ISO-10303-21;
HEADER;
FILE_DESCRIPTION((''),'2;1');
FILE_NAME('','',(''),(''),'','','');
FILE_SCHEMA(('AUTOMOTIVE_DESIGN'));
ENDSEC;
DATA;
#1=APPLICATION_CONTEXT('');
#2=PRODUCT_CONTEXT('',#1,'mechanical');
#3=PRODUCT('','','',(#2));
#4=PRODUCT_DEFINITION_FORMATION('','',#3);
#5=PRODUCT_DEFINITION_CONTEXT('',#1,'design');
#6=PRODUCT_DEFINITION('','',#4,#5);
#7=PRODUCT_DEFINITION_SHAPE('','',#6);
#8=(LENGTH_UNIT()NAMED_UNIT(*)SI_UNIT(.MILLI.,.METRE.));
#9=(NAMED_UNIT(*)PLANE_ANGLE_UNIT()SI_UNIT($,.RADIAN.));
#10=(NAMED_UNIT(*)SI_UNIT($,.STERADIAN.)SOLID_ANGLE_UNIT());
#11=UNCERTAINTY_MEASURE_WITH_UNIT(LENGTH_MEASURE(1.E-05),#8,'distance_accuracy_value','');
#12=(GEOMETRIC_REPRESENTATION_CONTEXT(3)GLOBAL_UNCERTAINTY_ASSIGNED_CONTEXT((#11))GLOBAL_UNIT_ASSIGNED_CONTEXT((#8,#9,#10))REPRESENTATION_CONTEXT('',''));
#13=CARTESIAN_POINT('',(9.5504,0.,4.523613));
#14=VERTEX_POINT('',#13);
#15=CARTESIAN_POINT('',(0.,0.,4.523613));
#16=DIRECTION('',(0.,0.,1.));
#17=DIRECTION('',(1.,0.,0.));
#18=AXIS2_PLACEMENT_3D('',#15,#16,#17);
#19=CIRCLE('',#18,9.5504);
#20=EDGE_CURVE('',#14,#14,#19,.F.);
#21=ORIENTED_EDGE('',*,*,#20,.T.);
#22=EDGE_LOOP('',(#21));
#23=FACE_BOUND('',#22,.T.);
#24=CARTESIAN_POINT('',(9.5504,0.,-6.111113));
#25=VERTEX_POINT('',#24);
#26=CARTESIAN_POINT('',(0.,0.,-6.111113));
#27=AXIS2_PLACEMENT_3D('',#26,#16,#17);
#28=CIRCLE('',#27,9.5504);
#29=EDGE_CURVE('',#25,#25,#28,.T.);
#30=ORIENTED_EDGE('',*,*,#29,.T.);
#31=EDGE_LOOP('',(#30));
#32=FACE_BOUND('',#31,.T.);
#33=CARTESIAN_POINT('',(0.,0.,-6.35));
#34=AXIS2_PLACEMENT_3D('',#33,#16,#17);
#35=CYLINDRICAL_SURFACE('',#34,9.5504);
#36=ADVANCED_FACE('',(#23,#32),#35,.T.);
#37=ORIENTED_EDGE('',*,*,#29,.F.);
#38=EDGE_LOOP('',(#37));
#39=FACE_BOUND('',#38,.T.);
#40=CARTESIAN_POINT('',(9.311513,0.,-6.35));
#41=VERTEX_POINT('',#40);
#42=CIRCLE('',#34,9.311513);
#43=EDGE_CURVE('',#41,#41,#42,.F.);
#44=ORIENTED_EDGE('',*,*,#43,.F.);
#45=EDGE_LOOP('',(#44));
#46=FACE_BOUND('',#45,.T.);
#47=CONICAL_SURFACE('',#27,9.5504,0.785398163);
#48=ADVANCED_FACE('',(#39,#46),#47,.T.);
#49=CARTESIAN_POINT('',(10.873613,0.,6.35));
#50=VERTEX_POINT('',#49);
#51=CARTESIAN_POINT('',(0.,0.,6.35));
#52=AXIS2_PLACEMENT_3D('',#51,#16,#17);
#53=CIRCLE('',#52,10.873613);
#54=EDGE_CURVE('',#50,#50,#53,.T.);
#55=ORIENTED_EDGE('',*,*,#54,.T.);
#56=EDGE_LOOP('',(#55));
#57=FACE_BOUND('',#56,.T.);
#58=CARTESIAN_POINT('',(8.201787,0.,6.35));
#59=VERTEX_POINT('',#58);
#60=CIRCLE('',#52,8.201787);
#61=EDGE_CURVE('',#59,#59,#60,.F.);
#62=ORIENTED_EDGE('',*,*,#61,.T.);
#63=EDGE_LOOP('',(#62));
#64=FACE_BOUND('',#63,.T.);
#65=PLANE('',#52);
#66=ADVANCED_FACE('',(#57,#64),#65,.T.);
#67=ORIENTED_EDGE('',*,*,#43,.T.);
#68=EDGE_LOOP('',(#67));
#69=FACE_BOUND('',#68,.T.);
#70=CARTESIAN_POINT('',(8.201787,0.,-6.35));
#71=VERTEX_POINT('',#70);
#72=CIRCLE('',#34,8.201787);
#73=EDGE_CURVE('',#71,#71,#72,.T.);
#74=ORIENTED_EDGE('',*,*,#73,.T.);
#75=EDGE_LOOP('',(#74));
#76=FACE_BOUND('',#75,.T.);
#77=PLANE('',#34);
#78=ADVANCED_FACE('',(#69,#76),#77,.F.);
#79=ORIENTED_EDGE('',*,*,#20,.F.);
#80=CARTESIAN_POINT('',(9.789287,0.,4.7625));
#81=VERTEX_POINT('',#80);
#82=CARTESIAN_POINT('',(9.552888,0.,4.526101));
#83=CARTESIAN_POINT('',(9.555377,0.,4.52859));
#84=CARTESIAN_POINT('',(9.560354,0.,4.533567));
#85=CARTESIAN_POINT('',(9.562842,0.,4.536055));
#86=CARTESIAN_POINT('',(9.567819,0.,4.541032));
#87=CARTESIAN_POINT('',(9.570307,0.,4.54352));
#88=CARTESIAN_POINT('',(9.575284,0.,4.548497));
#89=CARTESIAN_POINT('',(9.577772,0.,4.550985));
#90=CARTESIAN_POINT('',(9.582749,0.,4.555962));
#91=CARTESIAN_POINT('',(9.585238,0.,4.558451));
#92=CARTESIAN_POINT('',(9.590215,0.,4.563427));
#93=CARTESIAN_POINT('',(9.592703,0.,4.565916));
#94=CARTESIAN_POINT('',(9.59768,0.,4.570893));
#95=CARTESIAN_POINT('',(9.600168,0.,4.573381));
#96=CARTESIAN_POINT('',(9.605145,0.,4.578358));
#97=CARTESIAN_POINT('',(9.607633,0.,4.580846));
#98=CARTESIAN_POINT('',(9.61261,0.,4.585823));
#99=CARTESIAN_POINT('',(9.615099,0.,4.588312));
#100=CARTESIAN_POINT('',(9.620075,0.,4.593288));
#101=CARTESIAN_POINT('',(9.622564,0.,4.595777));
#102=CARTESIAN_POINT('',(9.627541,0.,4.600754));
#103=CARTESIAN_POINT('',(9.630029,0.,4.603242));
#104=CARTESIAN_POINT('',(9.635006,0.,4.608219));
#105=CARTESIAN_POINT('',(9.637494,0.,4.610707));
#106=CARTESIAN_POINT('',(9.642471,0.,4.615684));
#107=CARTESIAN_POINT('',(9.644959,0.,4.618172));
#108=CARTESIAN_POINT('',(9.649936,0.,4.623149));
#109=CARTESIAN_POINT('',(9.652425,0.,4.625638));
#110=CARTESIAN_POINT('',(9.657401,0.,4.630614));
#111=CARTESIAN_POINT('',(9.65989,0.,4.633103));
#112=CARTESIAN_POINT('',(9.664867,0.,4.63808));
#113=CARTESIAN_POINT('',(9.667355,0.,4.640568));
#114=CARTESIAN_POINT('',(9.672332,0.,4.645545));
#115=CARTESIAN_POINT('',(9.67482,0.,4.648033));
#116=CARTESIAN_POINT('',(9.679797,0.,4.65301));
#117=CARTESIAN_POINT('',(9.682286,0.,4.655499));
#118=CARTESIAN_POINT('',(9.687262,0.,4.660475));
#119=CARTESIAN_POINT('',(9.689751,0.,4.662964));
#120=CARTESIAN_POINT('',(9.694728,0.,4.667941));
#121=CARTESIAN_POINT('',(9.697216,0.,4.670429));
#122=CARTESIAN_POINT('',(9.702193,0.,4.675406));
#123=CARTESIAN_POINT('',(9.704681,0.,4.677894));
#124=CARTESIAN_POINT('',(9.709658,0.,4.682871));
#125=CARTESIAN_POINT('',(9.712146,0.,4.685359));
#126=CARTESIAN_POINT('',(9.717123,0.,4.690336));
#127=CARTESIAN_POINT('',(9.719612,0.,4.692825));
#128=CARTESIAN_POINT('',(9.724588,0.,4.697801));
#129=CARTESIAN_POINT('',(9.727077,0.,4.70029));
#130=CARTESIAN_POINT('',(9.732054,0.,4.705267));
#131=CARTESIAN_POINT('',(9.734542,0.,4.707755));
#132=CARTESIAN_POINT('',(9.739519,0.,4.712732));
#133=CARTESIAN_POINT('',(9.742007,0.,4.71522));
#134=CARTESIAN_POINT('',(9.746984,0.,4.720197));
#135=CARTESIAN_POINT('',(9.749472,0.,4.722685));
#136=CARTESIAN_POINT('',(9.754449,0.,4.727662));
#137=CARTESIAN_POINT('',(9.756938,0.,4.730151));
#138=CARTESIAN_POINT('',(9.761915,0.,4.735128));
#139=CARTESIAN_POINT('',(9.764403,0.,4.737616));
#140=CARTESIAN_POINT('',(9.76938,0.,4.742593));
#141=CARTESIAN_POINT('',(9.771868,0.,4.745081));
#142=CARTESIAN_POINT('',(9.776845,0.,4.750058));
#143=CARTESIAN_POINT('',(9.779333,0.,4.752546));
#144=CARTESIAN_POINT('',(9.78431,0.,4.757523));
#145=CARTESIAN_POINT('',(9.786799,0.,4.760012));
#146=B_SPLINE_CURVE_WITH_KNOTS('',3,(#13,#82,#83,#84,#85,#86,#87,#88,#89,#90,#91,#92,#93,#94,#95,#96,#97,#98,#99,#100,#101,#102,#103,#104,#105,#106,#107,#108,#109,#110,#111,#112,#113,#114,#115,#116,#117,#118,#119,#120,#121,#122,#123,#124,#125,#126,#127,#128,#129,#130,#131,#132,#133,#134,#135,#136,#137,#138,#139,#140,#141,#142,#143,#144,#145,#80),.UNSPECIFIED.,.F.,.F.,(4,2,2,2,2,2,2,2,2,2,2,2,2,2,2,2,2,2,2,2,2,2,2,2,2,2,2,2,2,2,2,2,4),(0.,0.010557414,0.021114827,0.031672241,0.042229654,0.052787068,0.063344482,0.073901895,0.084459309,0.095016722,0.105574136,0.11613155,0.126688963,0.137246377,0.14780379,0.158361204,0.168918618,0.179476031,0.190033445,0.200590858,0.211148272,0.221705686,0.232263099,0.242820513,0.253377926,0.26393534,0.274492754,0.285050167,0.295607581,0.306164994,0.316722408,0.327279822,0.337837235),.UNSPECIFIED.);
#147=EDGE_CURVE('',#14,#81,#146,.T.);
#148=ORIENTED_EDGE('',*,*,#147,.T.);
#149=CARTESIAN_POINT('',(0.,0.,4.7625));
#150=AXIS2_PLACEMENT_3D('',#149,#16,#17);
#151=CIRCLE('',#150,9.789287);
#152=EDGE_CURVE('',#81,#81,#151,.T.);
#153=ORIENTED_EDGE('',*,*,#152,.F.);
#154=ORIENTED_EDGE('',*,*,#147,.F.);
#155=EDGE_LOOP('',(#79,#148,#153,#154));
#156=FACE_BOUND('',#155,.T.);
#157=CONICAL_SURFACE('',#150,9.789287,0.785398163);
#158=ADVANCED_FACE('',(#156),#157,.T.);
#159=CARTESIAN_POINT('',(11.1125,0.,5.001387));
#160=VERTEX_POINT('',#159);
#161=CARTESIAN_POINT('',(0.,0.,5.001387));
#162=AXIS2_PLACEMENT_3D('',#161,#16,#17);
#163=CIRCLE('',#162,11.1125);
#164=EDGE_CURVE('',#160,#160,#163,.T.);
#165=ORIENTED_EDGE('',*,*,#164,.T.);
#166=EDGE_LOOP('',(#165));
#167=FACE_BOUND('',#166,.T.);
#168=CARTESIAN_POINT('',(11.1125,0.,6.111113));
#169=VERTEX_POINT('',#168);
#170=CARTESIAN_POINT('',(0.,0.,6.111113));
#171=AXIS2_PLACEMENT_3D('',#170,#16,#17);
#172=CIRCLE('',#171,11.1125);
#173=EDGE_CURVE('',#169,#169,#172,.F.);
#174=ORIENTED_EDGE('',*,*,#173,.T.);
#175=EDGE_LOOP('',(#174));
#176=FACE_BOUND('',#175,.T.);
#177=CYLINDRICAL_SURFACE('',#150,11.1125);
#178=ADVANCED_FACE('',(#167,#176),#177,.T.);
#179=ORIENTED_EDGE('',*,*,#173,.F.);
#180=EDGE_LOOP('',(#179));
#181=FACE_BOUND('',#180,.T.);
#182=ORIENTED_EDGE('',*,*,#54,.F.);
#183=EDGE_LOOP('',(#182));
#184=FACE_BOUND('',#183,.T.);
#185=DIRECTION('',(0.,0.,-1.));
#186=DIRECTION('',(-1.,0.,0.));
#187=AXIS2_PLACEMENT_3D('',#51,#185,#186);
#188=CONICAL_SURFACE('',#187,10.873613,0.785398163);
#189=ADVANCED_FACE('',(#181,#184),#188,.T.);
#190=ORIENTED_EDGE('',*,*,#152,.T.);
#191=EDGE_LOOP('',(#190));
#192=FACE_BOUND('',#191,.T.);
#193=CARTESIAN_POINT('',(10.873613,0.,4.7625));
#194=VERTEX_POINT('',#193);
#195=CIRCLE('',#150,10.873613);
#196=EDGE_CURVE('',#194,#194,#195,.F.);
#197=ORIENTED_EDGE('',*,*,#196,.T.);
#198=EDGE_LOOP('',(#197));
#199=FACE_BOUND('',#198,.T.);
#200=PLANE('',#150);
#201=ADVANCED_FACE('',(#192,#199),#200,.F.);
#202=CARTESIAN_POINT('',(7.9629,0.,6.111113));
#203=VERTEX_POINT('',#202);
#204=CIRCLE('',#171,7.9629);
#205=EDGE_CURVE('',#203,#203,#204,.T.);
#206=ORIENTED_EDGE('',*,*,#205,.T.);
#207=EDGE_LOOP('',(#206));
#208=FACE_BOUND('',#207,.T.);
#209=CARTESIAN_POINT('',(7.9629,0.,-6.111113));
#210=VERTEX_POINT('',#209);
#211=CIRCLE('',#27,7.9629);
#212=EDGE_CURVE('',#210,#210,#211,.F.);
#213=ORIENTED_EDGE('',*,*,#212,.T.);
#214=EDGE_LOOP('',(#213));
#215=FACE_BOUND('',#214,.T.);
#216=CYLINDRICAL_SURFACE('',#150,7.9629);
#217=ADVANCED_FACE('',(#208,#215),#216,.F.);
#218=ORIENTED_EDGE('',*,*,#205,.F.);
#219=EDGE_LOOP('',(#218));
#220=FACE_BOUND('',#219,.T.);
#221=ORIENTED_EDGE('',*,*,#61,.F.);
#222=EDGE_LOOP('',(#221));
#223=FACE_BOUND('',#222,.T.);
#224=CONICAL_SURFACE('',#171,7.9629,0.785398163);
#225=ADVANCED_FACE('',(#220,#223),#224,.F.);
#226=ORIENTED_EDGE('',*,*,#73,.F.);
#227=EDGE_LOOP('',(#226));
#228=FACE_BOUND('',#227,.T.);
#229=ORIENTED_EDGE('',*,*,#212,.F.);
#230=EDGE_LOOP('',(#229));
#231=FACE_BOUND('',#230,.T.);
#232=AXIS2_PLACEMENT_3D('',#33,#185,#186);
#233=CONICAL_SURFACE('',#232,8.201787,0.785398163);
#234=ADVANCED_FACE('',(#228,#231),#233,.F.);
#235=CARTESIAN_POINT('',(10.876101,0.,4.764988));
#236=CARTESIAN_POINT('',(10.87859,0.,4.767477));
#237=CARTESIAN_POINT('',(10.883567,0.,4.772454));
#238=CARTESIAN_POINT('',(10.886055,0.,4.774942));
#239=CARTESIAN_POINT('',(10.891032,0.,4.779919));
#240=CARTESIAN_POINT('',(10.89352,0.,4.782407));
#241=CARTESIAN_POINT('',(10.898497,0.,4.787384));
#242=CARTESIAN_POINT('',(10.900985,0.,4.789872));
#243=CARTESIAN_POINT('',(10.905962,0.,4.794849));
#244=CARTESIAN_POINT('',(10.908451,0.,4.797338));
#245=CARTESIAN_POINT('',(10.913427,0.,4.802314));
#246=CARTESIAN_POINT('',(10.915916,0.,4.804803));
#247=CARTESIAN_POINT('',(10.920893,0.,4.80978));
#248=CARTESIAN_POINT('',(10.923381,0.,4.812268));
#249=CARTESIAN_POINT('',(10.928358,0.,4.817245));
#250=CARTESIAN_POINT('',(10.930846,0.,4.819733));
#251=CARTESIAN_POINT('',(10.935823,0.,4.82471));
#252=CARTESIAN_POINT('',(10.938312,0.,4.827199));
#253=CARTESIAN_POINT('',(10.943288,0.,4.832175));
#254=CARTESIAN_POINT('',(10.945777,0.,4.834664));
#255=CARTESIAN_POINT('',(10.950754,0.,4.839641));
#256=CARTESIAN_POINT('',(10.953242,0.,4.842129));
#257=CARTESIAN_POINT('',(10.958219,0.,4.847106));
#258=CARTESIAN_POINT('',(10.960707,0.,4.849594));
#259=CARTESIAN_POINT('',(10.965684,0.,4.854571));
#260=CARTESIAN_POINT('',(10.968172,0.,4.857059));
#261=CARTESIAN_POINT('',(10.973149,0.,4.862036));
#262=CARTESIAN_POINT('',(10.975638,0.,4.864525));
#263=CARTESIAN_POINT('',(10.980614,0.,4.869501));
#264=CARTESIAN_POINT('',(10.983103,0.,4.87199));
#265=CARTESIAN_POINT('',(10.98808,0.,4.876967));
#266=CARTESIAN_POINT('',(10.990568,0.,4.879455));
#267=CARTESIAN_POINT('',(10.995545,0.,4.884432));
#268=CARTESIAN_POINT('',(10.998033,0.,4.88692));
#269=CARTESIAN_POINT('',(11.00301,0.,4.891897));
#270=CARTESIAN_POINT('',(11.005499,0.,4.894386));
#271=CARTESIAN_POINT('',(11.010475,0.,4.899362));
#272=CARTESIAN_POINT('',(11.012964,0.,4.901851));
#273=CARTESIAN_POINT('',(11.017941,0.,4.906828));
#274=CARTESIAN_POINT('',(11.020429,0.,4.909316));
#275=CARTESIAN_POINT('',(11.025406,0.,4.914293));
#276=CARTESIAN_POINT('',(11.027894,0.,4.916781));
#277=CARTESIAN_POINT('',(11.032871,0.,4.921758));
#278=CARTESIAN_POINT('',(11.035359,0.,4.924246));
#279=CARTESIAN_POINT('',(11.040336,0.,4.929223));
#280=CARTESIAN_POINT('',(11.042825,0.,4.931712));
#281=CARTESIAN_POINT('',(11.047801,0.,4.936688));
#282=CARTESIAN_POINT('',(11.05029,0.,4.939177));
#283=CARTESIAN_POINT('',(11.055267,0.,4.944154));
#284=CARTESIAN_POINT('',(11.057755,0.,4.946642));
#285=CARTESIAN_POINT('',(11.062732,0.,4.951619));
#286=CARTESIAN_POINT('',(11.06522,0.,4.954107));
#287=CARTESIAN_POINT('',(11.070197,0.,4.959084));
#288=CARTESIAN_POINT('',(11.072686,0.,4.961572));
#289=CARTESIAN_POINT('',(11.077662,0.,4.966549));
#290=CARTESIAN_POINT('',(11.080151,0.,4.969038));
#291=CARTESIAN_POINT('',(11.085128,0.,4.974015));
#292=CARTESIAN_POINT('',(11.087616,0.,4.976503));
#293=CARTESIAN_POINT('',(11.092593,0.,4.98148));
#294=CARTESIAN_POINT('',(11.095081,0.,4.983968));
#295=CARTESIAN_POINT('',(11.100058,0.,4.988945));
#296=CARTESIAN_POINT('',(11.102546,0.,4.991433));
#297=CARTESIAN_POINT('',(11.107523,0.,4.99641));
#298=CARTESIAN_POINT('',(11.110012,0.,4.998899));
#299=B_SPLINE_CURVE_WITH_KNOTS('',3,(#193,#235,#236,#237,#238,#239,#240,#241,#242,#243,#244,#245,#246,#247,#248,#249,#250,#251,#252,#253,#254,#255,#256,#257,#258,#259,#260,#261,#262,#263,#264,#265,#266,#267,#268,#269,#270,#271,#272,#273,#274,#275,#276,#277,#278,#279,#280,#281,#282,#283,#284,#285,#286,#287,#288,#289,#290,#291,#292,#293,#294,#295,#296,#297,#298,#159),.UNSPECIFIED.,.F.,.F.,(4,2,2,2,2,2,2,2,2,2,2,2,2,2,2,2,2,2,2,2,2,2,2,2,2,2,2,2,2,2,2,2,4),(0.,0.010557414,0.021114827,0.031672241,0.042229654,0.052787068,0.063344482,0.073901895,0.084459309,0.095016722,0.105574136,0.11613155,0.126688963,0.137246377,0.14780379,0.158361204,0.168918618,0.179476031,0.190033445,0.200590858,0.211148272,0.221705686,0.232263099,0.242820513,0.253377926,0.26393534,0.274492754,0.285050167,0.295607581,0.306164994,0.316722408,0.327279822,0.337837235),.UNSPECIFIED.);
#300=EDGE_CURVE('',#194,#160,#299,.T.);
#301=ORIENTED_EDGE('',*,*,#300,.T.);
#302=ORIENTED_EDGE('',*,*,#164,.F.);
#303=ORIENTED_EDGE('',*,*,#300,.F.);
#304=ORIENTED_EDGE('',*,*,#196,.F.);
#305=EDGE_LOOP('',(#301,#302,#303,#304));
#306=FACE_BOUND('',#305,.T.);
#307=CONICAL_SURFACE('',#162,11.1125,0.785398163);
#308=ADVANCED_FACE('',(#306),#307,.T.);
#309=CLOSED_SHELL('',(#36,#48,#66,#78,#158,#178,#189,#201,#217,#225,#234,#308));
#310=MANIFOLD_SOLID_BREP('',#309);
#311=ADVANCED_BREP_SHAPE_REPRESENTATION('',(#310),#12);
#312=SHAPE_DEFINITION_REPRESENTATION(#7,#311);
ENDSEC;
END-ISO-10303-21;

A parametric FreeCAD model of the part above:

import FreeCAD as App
import Part
import Sketcher
Q = App.Units.Quantity


def edges_at(feature, points):
    """Names of the edges that pass closest to the given points."""
    edges = feature.Shape.Edges
    near = lambda p: min(range(len(edges)), key=lambda i: edges[i].distToShape(Part.Vertex(*p))[0])
    return sorted({f"Edge{near(p) + 1}" for p in points})

doc = App.newDocument("Part")
params = doc.addObject("Spreadsheet::Sheet", "Params")
for row, (alias, value) in enumerate([
    ("sketch1_diameter", "0.875 in"),
    ("sketch1_diameter2", "0.627 in"),
    ("pad1_length", "0.0625 in"),
    ("sketch2_diameter", "0.752 in"),
    ("sketch2_diameter2", "0.627 in"),
    ("pad2_length", "0.4375 in"),
    ("chamfer_size", "0.238887 mm"),
], start=1):
    params.set(f"A{row}", alias)
    params.set(f"B{row}", "=" + value)
    params.setAlias(f"B{row}", alias)

body = doc.addObject("PartDesign::Body", "Body")

# Sketch on XY plane
sketch1 = doc.addObject("Sketcher::SketchObject", "Sketch")
body.addObject(sketch1)
sketch1.AttachmentSupport = (doc.XY_Plane, [""])
sketch1.MapMode = "FlatFace"
sketch1.AttachmentOffset = App.Placement(App.Vector(0, 0, 0.25 * 25.4), App.Rotation())
sketch1.addGeometry([
    Part.Circle(App.Vector(0, 0, 0), App.Vector(0, 0, 1), 11),
    Part.Circle(App.Vector(0, 0, 0), App.Vector(0, 0, 1), 8),
], False)
sketch1.addConstraint([
    Sketcher.Constraint("Coincident", 0, 3, -1, 1),
    Sketcher.Constraint("Coincident", 1, 3, -1, 1),
    Sketcher.Constraint("Diameter", 0, Q("0.875 in")),
    Sketcher.Constraint("Diameter", 1, Q("0.627 in")),
])
sketch1.setExpression("Constraints[2]", "Params.sketch1_diameter")
sketch1.setExpression("Constraints[3]", "Params.sketch1_diameter2")
pad1 = doc.addObject("PartDesign::Pad", "Pad")
body.addObject(pad1)
pad1.Profile = sketch1
pad1.setExpression("Length", "Params.pad1_length")
pad1.Reversed = True

# Sketch on XY plane
sketch2 = doc.addObject("Sketcher::SketchObject", "Sketch001")
body.addObject(sketch2)
sketch2.AttachmentSupport = (doc.XY_Plane, [""])
sketch2.MapMode = "FlatFace"
sketch2.AttachmentOffset = App.Placement(App.Vector(0, 0, 0.1875 * 25.4), App.Rotation())
sketch2.addGeometry([
    Part.Circle(App.Vector(0, 0, 0), App.Vector(0, 0, 1), 10),
    Part.Circle(App.Vector(0, 0, 0), App.Vector(0, 0, 1), 8),
], False)
sketch2.addConstraint([
    Sketcher.Constraint("Coincident", 0, 3, -1, 1),
    Sketcher.Constraint("Coincident", 1, 3, -1, 1),
    Sketcher.Constraint("Diameter", 0, Q("0.752 in")),
    Sketcher.Constraint("Diameter", 1, Q("0.627 in")),
])
sketch2.setExpression("Constraints[2]", "Params.sketch2_diameter")
sketch2.setExpression("Constraints[3]", "Params.sketch2_diameter2")
pad2 = doc.addObject("PartDesign::Pad", "Pad001")
body.addObject(pad2)
pad2.Profile = sketch2
pad2.setExpression("Length", "Params.pad2_length")
pad2.Reversed = True
doc.recompute()

chamfer = doc.addObject("PartDesign::Chamfer", "Chamfer")
body.addObject(chamfer)
chamfer.Base = (pad2, edges_at(pad2, [
    (-7.963, 0, -6.35),
    (-9.55, 0, 4.763),
    (-11.113, 0, 6.35),
    (-11.113, 0, 4.763),
    (-7.963, 0, 6.35),
    (-9.55, 0, -6.35),
]))
chamfer.setExpression("Size", "Params.chamfer_size")

doc.recompute()
